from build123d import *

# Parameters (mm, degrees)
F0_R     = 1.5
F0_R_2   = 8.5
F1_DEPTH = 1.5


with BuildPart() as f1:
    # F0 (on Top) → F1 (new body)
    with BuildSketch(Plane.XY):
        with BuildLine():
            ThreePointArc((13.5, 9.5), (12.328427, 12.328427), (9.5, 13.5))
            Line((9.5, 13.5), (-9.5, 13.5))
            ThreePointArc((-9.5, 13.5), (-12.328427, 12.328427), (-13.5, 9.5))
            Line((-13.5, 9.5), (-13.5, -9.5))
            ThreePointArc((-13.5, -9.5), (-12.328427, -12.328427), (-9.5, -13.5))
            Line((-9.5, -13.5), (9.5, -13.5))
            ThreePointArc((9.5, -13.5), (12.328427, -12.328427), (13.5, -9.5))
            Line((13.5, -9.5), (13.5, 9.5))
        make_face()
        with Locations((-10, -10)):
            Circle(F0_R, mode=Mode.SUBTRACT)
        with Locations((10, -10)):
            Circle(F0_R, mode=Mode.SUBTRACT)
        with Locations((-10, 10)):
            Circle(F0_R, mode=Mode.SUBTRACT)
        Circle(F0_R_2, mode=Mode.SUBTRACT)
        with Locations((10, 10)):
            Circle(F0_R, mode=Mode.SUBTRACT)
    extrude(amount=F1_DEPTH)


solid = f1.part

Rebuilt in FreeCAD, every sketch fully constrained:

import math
import FreeCAD as App
import Part
import Sketcher
Q = App.Units.Quantity

doc = App.newDocument("Part")
params = doc.addObject("Spreadsheet::Sheet", "Params")
for row, (alias, value) in enumerate([
    ("sketch1_diameter", "3 mm"),
    ("sketch1_diameter2", "17 mm"),
    ("sketch1_radius", "4 mm"),
    ("sketch1_width", "19 mm"),
    ("pad1_length", "1.5 mm"),
], start=1):
    params.set(f"A{row}", alias)
    params.set(f"B{row}", "=" + value)
    params.setAlias(f"B{row}", alias)

body = doc.addObject("PartDesign::Body", "Body")

# Sketch on XY plane
sketch1 = body.newObject("Sketcher::SketchObject", "Sketch")
sketch1.AttachmentSupport = (doc.getObject("XY_Plane"), [""])
sketch1.MapMode = "FlatFace"
sketch1.addGeometry([
    Part.ArcOfCircle(Part.Circle(App.Vector(9.5, 9.5, 0), App.Vector(0, 0, 1), 4), math.radians(0.000006), math.radians(89.999994)),  # 0
    Part.LineSegment(App.Vector(9.5, 13.5, 0), App.Vector(-9.5, 13.5, 0)),  # 1
    Part.ArcOfCircle(Part.Circle(App.Vector(-9.5, 9.5, 0), App.Vector(0, 0, 1), 4), math.radians(90.000006), math.radians(179.999994)),  # 2
    Part.LineSegment(App.Vector(-13.5, 9.5, 0), App.Vector(-13.5, -9.5, 0)),  # 3
    Part.ArcOfCircle(Part.Circle(App.Vector(-9.5, -9.5, 0), App.Vector(0, 0, 1), 4), math.radians(-179.999994), math.radians(-90.000006)),  # 4
    Part.LineSegment(App.Vector(-9.5, -13.5, 0), App.Vector(9.5, -13.5, 0)),  # 5
    Part.ArcOfCircle(Part.Circle(App.Vector(9.5, -9.5, 0), App.Vector(0, 0, 1), 4), math.radians(-89.999994), math.radians(-0.000006)),  # 6
    Part.LineSegment(App.Vector(13.5, -9.5, 0), App.Vector(13.5, 9.5, 0)),  # 7
    Part.Circle(App.Vector(-10, -10, 0), App.Vector(0, 0, 1), 1.5),  # 8
    Part.Circle(App.Vector(10, -10, 0), App.Vector(0, 0, 1), 1.5),  # 9
    Part.Circle(App.Vector(-10, 10, 0), App.Vector(0, 0, 1), 1.5),  # 10
    Part.Circle(App.Vector(0, 0, 0), App.Vector(0, 0, 1), 8.5),  # 11
    Part.Circle(App.Vector(10, 10, 0), App.Vector(0, 0, 1), 1.5),  # 12
], False)
sketch1.addConstraint([
    Sketcher.Constraint("Tangent", 0, 2, 1, 1),
    Sketcher.Constraint("Tangent", 1, 2, 2, 1),
    Sketcher.Constraint("Tangent", 2, 2, 3, 1),
    Sketcher.Constraint("Tangent", 3, 2, 4, 1),
    Sketcher.Constraint("Tangent", 4, 2, 5, 1),
    Sketcher.Constraint("Tangent", 5, 2, 6, 1),
    Sketcher.Constraint("Tangent", 6, 2, 7, 1),
    Sketcher.Constraint("Tangent", 7, 2, 0, 1),
    Sketcher.Constraint("Horizontal", 1),
    Sketcher.Constraint("Vertical", 3),
    Sketcher.Constraint("Horizontal", 5),
    Sketcher.Constraint("Vertical", 7),
    Sketcher.Constraint("Coincident", 11, 3, -1, 1),
    Sketcher.Constraint("Equal", 0, 2),
    Sketcher.Constraint("Equal", 2, 4),
    Sketcher.Constraint("Equal", 4, 6),
    Sketcher.Constraint("Equal", 8, 9),
    Sketcher.Constraint("Equal", 9, 10),
    Sketcher.Constraint("Equal", 10, 12),
    Sketcher.Constraint("Symmetric", 0, 3, 4, 3, -1, 1),
    Sketcher.Constraint("Symmetric", 9, 3, 10, 3, -1, 1),
    Sketcher.Constraint("Symmetric", 8, 3, 12, 3, -1, 1),
    Sketcher.Constraint("Symmetric", 8, 3, 9, 3, -2),
    Sketcher.Constraint("Equal", 5, 3),
    Sketcher.Constraint("Diameter", 8, Q("3 mm")),
    Sketcher.Constraint("Diameter", 11, Q("17 mm")),
    Sketcher.Constraint("Radius", 0, Q("4 mm")),
    Sketcher.Constraint("DistanceX", 1, 2, 1, 1, Q("19 mm")),
    Sketcher.Constraint("DistanceX", 8, 3, -1, 1, Q("10 mm")),
    Sketcher.Constraint("DistanceY", 8, 3, -1, 1, Q("10 mm")),
])
sketch1.setExpression("Constraints[24]", "Params.sketch1_diameter")
sketch1.setExpression("Constraints[25]", "Params.sketch1_diameter2")
sketch1.setExpression("Constraints[26]", "Params.sketch1_radius")
sketch1.setExpression("Constraints[27]", "Params.sketch1_width")
pad1 = body.newObject("PartDesign::Pad", "Pad")
pad1.Profile = sketch1
pad1.setExpression("Length", "Params.pad1_length")

doc.recompute()
